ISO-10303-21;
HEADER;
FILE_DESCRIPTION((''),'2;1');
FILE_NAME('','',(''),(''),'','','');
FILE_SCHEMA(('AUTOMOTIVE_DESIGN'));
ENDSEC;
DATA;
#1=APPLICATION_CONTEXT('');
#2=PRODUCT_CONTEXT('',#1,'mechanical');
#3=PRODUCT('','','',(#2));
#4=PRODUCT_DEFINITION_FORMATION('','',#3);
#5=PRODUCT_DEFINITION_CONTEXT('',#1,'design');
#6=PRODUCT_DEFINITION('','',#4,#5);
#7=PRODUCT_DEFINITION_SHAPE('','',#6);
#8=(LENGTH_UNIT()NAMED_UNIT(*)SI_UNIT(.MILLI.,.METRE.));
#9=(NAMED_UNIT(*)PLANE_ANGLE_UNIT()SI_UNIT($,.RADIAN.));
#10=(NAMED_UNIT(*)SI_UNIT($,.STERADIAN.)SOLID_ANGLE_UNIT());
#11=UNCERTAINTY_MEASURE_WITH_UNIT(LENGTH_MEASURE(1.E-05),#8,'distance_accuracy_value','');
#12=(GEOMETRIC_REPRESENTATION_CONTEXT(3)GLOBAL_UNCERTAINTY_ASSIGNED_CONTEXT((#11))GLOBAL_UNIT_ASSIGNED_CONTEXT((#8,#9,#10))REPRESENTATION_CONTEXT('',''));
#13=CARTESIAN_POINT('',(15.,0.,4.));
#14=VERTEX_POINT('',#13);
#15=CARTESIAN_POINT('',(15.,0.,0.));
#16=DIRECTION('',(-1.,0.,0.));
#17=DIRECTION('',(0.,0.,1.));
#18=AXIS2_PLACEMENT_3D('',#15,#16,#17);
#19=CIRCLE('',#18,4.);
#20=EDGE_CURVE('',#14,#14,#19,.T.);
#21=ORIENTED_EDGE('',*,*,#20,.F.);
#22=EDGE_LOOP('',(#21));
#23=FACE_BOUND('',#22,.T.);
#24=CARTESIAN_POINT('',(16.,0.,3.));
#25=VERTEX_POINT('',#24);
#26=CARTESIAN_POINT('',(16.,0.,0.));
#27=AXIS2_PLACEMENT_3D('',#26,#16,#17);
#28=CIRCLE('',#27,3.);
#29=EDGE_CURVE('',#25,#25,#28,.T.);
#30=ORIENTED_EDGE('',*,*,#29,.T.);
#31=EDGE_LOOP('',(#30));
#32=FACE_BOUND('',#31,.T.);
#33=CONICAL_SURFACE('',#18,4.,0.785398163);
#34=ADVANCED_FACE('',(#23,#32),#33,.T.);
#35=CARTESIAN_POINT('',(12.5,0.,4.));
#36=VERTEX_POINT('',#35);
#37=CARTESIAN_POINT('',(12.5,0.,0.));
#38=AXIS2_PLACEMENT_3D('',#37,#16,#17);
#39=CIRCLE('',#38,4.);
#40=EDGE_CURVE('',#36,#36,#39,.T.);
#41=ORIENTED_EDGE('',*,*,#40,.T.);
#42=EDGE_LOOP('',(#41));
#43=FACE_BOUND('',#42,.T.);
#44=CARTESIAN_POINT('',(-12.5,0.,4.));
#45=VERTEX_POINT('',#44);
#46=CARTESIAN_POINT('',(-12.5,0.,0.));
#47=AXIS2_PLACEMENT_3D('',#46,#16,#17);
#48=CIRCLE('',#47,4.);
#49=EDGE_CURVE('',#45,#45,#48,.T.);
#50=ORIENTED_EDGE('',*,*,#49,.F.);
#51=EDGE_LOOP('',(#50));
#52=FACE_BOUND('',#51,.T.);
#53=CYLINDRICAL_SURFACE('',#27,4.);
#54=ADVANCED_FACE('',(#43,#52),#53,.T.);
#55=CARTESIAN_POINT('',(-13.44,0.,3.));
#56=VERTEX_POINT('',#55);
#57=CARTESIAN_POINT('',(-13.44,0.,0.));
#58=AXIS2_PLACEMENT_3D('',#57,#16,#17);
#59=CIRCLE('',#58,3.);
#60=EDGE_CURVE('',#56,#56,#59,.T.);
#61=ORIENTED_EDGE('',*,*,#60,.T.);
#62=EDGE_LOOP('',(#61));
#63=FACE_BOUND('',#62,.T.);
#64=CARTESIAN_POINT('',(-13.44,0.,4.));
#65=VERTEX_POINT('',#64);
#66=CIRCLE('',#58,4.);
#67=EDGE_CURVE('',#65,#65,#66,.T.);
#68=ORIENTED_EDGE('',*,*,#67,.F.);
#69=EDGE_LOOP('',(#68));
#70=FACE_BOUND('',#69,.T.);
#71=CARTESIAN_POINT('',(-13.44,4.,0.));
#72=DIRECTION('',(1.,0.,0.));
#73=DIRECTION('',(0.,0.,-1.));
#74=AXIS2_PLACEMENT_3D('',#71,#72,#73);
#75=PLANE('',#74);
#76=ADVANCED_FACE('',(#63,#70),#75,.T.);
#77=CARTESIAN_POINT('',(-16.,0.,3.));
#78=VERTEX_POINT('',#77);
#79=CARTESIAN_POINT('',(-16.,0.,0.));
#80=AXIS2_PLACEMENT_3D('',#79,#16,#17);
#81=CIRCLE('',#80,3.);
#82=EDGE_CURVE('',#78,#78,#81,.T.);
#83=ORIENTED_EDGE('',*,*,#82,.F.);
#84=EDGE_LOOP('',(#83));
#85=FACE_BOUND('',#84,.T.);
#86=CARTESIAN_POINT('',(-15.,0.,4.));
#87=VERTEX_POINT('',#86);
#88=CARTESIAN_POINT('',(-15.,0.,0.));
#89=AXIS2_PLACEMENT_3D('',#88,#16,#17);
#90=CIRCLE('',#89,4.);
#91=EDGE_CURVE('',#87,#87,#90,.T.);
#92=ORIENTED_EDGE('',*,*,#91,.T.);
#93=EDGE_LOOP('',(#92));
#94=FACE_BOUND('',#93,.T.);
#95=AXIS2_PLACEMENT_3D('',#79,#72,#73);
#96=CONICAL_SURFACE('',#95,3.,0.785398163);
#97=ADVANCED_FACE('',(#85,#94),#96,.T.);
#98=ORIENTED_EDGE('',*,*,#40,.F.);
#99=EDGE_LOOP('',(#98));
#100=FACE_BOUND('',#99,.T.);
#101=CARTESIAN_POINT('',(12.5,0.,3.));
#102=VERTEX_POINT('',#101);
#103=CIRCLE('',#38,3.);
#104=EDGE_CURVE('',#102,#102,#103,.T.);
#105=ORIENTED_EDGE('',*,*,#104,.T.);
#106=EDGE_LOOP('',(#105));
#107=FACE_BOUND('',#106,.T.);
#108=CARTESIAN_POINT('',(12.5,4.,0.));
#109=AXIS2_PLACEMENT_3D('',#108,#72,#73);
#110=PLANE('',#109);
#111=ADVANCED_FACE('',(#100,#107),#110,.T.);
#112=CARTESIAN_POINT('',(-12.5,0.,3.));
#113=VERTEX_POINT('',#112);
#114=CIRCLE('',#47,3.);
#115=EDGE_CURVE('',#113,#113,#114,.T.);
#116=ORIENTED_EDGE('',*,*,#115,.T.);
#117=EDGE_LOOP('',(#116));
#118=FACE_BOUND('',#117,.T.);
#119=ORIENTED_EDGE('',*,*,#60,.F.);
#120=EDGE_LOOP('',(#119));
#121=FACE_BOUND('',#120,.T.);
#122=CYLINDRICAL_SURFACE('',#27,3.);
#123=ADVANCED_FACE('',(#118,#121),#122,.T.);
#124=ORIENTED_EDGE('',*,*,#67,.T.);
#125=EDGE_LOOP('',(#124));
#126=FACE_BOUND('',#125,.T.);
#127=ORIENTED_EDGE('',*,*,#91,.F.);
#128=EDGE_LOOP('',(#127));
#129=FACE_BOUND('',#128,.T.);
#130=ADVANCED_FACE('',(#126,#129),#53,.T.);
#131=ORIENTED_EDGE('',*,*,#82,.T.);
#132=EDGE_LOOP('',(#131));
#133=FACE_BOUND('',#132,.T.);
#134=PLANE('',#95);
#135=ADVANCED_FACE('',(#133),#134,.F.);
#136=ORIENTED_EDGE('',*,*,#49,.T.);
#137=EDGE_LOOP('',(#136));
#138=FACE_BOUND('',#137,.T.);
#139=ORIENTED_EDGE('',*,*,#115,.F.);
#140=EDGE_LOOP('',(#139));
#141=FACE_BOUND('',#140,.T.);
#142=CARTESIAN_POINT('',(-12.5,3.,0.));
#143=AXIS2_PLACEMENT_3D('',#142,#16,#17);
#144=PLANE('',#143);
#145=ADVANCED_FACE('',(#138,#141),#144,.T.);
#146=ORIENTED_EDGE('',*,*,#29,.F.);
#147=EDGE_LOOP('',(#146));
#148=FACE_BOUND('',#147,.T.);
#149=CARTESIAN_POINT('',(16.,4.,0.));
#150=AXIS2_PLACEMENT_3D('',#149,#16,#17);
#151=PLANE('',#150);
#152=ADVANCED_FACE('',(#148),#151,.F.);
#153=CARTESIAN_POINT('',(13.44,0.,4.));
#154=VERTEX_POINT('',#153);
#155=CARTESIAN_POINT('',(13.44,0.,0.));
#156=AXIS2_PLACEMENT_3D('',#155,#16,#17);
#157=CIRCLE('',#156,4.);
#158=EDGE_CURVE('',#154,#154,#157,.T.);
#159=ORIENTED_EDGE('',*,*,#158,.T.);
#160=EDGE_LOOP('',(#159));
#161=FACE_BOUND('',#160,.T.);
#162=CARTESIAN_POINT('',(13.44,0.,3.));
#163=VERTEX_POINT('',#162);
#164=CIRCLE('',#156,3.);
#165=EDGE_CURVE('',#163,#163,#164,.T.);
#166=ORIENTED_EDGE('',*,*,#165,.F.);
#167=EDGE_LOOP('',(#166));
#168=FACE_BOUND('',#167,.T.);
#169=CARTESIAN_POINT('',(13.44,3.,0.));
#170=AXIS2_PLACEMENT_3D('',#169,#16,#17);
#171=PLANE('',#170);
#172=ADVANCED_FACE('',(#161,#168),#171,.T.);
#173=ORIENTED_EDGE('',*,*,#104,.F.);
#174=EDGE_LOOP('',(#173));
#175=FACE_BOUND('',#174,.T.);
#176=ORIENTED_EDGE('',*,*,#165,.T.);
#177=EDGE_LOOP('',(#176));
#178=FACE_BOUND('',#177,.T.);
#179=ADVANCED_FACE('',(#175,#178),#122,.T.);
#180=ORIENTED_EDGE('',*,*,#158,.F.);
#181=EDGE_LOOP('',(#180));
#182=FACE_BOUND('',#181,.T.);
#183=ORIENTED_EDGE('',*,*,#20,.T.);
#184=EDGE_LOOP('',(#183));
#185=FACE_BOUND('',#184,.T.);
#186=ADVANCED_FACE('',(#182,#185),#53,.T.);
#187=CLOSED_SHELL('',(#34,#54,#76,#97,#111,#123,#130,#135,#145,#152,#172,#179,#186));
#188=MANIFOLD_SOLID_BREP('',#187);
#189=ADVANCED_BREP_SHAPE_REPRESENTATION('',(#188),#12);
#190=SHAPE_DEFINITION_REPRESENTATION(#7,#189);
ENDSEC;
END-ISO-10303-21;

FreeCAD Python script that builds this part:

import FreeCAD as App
import Part
import Sketcher
Q = App.Units.Quantity

doc = App.newDocument("Part")
body = doc.addObject("PartDesign::Body", "Body")

sketch1 = body.newObject("Sketcher::SketchObject", "Sketch")
sketch1.AttachmentSupport = (doc.getObject("XY_Plane"), [""])
sketch1.MapMode = "FlatFace"
sketch1.addGeometry([
    Part.LineSegment(App.Vector(-16, 4, 0), App.Vector(-16, 0, 0)),
    Part.LineSegment(App.Vector(-16, 0, 0), App.Vector(16, 0, 0)),
    Part.LineSegment(App.Vector(16, 0, 0), App.Vector(16, 4, 0)),
    Part.LineSegment(App.Vector(16, 4, 0), App.Vector(-16, 4, 0)),
], False)
sketch1.addConstraint([
    Sketcher.Constraint("Coincident", 0, 2, 1, 1),
    Sketcher.Constraint("Coincident", 1, 2, 2, 1),
    Sketcher.Constraint("Coincident", 2, 2, 3, 1),
    Sketcher.Constraint("Coincident", 3, 2, 0, 1),
    Sketcher.Constraint("Vertical", 0),
    Sketcher.Constraint("Horizontal", 1),
    Sketcher.Constraint("Vertical", 2),
    Sketcher.Constraint("Horizontal", 3),
    Sketcher.Constraint("Symmetric", 0, 2, 1, 2, -1, 1),
    Sketcher.Constraint("DistanceX", 1, 1, 1, 2, Q("32 mm")),
    Sketcher.Constraint("DistanceY", 0, 2, 0, 1, Q("4 mm")),
])
revolution = body.newObject("PartDesign::Revolution", "Revolution")
revolution.Profile = sketch1
revolution.ReferenceAxis = (sketch1, ["H_Axis"])
revolution.Angle = 360

sketch2 = body.newObject("Sketcher::SketchObject", "Sketch001")
sketch2.AttachmentSupport = (doc.getObject("XY_Plane"), [""])
sketch2.MapMode = "FlatFace"
sketch2.addGeometry([
    Part.LineSegment(App.Vector(15, 4, 0), App.Vector(16, 3, 0)),
    Part.LineSegment(App.Vector(16, 3, 0), App.Vector(16, 4, 0)),
    Part.LineSegment(App.Vector(16, 4, 0), App.Vector(15, 4, 0)),
], False)
sketch2.addConstraint([
    Sketcher.Constraint("Coincident", 0, 2, 1, 1),
    Sketcher.Constraint("Coincident", 1, 2, 2, 1),
    Sketcher.Constraint("Coincident", 2, 2, 0, 1),
    Sketcher.Constraint("Vertical", 1),
    Sketcher.Constraint("Horizontal", 2),
    Sketcher.Constraint("Equal", 2, 1),
    Sketcher.Constraint("DistanceX", 2, 2, 2, 1, Q("1 mm")),
    Sketcher.Constraint("DistanceX", -1, 1, 0, 2, Q("16 mm")),
    Sketcher.Constraint("DistanceY", -1, 1, 0, 2, Q("3 mm")),
])
groove = body.newObject("PartDesign::Groove", "Groove")
groove.Profile = sketch2
groove.ReferenceAxis = (sketch2, ["H_Axis"])
groove.Angle = 360

sketch3 = body.newObject("Sketcher::SketchObject", "Sketch002")
sketch3.AttachmentSupport = (doc.getObject("XY_Plane"), [""])
sketch3.MapMode = "FlatFace"
sketch3.addGeometry([
    Part.LineSegment(App.Vector(-16, 3, 0), App.Vector(-15, 4, 0)),
    Part.LineSegment(App.Vector(-15, 4, 0), App.Vector(-16, 4, 0)),
    Part.LineSegment(App.Vector(-16, 4, 0), App.Vector(-16, 3, 0)),
], False)
sketch3.addConstraint([
    Sketcher.Constraint("Coincident", 0, 2, 1, 1),
    Sketcher.Constraint("Coincident", 1, 2, 2, 1),
    Sketcher.Constraint("Coincident", 2, 2, 0, 1),
    Sketcher.Constraint("Horizontal", 1),
    Sketcher.Constraint("Vertical", 2),
    Sketcher.Constraint("Equal", 1, 2),
    Sketcher.Constraint("DistanceX", 1, 2, 1, 1, Q("1 mm")),
    Sketcher.Constraint("DistanceX", 0, 2, -1, 1, Q("15 mm")),
    Sketcher.Constraint("DistanceY", -1, 1, 0, 2, Q("4 mm")),
])
groove2 = body.newObject("PartDesign::Groove", "Groove001")
groove2.Profile = sketch3
groove2.ReferenceAxis = (sketch3, ["H_Axis"])
groove2.Angle = 360

sketch4 = body.newObject("Sketcher::SketchObject", "Sketch003")
sketch4.AttachmentSupport = (doc.getObject("XY_Plane"), [""])
sketch4.MapMode = "FlatFace"
sketch4.addGeometry([
    Part.LineSegment(App.Vector(12.5, 4, 0), App.Vector(12.5, 3, 0)),
    Part.LineSegment(App.Vector(12.5, 3, 0), App.Vector(13.4, 3, 0)),
    Part.LineSegment(App.Vector(13.4, 3, 0), App.Vector(13.4, 4, 0)),
    Part.LineSegment(App.Vector(13.4, 4, 0), App.Vector(12.5, 4, 0)),
], False)
sketch4.addConstraint([
    Sketcher.Constraint("Coincident", 0, 2, 1, 1),
    Sketcher.Constraint("Coincident", 1, 2, 2, 1),
    Sketcher.Constraint("Coincident", 2, 2, 3, 1),
    Sketcher.Constraint("Coincident", 3, 2, 0, 1),
    Sketcher.Constraint("Vertical", 0),
    Sketcher.Constraint("Horizontal", 1),
    Sketcher.Constraint("Vertical", 2),
    Sketcher.Constraint("Horizontal", 3),
    Sketcher.Constraint("DistanceY", 0, 2, 0, 1, Q("1 mm")),
    Sketcher.Constraint("DistanceY", -1, 1, 0, 2, Q("3 mm")),
    Sketcher.Constraint("DistanceX", 1, 1, 1, 2, Q("0.94 mm")),
    Sketcher.Constraint("DistanceX", -1, 1, 0, 2, Q("12.5 mm")),
])
groove3 = body.newObject("PartDesign::Groove", "Groove002")
groove3.Profile = sketch4
groove3.ReferenceAxis = (sketch4, ["H_Axis"])
groove3.Angle = 360

sketch5 = body.newObject("Sketcher::SketchObject", "Sketch004")
sketch5.AttachmentSupport = (doc.getObject("XY_Plane"), [""])
sketch5.MapMode = "FlatFace"
sketch5.addGeometry([
    Part.LineSegment(App.Vector(-13.4, 4, 0), App.Vector(-13.4, 3, 0)),
    Part.LineSegment(App.Vector(-13.4, 3, 0), App.Vector(-12.5, 3, 0)),
    Part.LineSegment(App.Vector(-12.5, 3, 0), App.Vector(-12.5, 4, 0)),
    Part.LineSegment(App.Vector(-12.5, 4, 0), App.Vector(-13.4, 4, 0)),
], False)
sketch5.addConstraint([
    Sketcher.Constraint("Coincident", 0, 2, 1, 1),
    Sketcher.Constraint("Coincident", 1, 2, 2, 1),
    Sketcher.Constraint("Coincident", 2, 2, 3, 1),
    Sketcher.Constraint("Coincident", 3, 2, 0, 1),
    Sketcher.Constraint("Vertical", 0),
    Sketcher.Constraint("Horizontal", 1),
    Sketcher.Constraint("Vertical", 2),
    Sketcher.Constraint("Horizontal", 3),
    Sketcher.Constraint("DistanceY", 0, 2, 0, 1, Q("1 mm")),
    Sketcher.Constraint("DistanceY", -1, 1, 0, 2, Q("3 mm")),
    Sketcher.Constraint("DistanceX", 1, 1, 1, 2, Q("0.94 mm")),
    Sketcher.Constraint("DistanceX", 1, 2, -1, 1, Q("12.5 mm")),
])
groove4 = body.newObject("PartDesign::Groove", "Groove003")
groove4.Profile = sketch5
groove4.ReferenceAxis = (sketch5, ["H_Axis"])
groove4.Angle = 360

doc.recompute()
